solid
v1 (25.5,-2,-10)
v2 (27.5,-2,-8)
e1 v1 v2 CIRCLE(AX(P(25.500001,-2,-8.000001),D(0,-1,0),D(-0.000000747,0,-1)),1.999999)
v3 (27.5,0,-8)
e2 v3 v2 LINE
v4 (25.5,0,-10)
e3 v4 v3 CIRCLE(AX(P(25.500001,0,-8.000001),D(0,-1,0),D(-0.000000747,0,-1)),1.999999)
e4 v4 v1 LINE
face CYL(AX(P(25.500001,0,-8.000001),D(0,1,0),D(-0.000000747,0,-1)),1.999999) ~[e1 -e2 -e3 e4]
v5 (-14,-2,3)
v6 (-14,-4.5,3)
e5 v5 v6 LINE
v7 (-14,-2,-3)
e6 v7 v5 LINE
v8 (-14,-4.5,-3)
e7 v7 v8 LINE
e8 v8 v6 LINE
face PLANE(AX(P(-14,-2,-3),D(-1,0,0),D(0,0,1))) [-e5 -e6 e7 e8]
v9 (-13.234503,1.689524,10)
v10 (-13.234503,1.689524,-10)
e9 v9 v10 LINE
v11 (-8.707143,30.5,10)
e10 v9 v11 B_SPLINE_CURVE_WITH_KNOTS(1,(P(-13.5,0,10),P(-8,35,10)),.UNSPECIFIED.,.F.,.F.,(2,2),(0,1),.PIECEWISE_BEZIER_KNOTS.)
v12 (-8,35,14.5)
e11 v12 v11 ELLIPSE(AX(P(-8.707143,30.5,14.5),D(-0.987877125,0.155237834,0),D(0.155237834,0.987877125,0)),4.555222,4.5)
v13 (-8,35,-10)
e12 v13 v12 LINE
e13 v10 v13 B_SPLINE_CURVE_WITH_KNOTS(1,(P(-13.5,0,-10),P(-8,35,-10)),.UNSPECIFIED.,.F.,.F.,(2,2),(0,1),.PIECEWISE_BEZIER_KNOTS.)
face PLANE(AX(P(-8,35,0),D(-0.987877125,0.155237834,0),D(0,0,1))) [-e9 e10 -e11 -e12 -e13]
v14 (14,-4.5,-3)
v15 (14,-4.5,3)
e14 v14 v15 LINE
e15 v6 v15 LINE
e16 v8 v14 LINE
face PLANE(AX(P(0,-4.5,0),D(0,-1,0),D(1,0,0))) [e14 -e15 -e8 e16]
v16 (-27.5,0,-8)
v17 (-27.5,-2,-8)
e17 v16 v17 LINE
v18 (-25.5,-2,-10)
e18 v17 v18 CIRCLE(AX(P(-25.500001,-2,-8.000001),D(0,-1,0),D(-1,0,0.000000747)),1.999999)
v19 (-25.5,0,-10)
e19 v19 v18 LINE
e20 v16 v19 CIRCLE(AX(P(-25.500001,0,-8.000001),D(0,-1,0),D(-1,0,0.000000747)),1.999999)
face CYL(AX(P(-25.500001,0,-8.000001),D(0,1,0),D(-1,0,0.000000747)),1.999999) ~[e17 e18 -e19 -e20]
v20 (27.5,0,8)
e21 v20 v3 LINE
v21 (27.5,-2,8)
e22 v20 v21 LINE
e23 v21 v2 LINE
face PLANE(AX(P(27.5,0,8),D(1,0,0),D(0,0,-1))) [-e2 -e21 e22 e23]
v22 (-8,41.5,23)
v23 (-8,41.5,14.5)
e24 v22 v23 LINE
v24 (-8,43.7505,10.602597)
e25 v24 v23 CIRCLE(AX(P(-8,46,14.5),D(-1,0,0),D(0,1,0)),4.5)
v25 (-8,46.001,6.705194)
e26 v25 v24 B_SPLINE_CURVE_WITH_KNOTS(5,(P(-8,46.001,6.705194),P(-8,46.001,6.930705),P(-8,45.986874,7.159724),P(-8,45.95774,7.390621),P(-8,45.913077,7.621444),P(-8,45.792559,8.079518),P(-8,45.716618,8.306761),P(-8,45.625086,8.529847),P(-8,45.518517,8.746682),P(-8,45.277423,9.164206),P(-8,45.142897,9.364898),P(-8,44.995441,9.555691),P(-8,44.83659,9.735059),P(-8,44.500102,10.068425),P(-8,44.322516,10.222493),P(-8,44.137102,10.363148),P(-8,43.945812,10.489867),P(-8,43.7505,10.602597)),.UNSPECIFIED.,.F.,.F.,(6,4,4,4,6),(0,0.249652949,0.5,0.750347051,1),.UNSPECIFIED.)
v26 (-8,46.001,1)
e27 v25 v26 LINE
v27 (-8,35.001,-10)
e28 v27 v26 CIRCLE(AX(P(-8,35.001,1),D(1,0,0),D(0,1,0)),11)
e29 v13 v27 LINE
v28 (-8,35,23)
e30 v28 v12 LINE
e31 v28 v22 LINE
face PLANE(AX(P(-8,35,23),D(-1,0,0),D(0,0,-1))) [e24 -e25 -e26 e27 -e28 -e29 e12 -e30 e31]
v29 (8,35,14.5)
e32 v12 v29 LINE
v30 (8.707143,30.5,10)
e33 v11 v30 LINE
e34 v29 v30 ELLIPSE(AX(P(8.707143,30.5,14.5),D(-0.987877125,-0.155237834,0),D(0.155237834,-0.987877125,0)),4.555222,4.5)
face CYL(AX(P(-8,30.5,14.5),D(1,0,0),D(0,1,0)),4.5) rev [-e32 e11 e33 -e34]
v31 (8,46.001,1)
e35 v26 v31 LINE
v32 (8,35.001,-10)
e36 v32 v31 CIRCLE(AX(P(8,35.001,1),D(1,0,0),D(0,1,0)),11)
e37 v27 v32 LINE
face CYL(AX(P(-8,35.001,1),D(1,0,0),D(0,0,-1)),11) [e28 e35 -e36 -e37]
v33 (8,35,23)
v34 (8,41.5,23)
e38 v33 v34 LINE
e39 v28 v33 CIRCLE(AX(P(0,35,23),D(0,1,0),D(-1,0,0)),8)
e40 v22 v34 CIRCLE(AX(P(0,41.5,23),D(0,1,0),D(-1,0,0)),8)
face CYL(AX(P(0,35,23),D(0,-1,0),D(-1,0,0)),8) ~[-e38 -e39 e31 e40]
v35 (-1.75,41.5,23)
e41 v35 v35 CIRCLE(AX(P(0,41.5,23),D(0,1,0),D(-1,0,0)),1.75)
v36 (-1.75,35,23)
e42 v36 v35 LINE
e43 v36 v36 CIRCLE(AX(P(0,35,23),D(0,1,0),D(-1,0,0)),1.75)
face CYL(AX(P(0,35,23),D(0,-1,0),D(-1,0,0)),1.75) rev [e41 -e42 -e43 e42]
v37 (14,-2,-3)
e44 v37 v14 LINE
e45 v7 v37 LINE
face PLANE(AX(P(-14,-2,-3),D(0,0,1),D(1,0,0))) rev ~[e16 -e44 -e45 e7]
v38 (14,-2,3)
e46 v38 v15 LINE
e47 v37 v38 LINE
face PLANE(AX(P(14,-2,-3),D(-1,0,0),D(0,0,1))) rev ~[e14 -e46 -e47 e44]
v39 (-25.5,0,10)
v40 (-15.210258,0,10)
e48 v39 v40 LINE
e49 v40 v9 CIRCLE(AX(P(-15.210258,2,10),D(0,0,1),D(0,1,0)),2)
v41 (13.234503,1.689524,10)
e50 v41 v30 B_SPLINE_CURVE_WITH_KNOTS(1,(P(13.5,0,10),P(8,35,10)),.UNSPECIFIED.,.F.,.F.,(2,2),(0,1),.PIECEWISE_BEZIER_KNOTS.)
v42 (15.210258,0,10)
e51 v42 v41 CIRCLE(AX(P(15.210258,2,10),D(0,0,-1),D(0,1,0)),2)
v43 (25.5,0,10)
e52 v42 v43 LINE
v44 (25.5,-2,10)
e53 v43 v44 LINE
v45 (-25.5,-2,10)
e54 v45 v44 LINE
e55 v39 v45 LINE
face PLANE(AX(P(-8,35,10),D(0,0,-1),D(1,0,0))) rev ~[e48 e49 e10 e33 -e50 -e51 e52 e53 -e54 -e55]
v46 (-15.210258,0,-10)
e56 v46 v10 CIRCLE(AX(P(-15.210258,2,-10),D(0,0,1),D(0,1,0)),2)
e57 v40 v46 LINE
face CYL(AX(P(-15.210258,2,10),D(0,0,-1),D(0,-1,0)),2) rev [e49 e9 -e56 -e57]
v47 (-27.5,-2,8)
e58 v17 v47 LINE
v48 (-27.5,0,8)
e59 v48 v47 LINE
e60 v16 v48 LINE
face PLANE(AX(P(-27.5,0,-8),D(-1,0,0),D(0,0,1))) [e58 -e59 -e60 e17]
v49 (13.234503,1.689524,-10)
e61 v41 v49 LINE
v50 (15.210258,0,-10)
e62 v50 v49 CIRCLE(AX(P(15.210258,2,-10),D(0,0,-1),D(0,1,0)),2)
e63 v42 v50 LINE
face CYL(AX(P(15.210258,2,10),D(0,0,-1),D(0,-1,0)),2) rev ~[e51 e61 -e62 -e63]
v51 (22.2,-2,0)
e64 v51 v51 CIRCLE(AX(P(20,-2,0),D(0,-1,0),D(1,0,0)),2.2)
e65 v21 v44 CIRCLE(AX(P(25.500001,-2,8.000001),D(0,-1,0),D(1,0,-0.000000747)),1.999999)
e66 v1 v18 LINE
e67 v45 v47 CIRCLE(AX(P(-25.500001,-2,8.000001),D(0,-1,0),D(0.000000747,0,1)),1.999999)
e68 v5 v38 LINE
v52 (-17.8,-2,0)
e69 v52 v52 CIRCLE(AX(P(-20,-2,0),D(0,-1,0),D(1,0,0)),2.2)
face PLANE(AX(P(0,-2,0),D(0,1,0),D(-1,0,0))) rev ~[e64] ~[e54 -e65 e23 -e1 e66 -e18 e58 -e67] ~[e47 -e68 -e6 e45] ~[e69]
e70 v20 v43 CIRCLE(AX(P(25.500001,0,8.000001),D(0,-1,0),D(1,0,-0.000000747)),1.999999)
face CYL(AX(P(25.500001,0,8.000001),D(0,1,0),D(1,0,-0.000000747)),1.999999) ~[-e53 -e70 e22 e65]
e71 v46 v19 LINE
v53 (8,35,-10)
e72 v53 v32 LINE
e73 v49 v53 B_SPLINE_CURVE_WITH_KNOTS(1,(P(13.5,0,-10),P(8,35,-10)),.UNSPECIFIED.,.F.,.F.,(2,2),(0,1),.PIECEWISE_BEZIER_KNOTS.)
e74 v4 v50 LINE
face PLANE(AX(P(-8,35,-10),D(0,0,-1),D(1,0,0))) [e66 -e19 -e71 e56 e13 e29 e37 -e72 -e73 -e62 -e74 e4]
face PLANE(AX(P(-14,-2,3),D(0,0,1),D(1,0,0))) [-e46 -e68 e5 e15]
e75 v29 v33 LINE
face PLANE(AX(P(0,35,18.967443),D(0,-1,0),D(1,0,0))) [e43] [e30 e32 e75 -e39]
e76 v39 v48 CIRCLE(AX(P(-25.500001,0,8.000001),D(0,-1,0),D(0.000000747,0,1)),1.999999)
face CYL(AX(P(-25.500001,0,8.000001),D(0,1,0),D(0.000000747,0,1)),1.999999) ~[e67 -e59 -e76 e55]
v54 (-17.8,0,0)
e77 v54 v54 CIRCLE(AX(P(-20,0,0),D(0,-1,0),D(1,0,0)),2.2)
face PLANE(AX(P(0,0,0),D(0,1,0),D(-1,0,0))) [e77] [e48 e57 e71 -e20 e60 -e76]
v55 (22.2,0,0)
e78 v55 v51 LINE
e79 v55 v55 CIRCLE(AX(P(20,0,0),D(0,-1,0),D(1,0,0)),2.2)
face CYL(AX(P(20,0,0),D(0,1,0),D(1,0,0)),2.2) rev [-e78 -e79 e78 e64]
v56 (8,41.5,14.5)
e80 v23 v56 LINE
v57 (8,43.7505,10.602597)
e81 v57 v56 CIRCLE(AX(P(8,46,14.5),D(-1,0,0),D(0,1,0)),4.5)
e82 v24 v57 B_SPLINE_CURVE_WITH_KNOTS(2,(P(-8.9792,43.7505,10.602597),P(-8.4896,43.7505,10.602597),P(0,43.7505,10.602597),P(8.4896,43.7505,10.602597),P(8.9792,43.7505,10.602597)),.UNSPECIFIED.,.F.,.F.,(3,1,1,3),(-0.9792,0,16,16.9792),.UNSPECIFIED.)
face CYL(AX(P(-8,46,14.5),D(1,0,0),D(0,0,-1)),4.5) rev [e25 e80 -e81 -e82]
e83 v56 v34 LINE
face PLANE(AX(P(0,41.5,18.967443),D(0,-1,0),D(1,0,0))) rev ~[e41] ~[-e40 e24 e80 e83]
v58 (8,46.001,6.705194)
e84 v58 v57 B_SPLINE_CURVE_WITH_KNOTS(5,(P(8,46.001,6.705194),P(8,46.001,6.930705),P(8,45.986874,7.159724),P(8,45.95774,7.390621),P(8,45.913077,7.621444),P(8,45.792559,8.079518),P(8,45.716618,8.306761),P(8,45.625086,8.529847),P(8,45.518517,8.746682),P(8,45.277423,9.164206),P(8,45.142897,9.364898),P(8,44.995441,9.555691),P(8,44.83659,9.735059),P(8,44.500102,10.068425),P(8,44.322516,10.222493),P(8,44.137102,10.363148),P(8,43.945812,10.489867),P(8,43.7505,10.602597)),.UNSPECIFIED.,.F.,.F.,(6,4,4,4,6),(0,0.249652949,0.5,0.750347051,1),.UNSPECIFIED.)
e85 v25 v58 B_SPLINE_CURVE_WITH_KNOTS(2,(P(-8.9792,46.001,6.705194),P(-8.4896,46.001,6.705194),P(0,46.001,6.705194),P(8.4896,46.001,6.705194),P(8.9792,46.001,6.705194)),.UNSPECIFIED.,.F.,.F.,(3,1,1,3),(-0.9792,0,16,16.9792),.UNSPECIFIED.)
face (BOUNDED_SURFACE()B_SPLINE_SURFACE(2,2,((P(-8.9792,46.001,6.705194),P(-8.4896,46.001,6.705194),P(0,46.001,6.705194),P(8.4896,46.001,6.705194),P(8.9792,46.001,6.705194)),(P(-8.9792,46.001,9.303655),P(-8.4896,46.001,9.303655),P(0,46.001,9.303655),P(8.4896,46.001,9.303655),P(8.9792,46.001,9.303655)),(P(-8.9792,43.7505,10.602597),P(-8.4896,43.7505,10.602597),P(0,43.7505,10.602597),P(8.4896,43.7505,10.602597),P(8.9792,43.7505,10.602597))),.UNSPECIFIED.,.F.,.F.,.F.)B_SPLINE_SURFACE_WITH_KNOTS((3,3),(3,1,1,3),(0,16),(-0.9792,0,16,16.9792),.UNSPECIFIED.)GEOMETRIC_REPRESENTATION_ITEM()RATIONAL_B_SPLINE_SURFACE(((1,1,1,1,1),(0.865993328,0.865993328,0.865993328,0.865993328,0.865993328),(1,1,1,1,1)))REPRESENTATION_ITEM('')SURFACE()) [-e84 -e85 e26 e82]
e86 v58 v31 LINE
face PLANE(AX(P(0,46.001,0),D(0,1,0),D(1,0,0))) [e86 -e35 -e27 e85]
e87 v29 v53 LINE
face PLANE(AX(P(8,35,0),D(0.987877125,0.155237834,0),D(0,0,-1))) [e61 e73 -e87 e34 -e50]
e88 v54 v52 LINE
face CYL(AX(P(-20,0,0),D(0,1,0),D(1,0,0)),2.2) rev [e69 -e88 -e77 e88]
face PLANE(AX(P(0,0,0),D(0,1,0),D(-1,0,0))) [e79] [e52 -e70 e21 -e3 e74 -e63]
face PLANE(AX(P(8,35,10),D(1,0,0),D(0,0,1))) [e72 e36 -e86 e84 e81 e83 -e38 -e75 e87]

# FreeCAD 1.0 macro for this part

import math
import FreeCAD as App
import Part
import Sketcher
from FreeCAD import Vector
Q = App.Units.Quantity


def edges_at(feature, points):
    """Names of the edges that pass closest to the given points."""
    edges = feature.Shape.Edges
    near = lambda p: min(range(len(edges)), key=lambda i: edges[i].distToShape(Part.Vertex(*p))[0])
    return sorted({f"Edge{near(p) + 1}" for p in points})

doc = App.newDocument("Part")
body = doc.addObject("PartDesign::Body", "Body")

# Sketch on XY plane
sketch1 = doc.addObject("Sketcher::SketchObject", "Sketch")
body.addObject(sketch1)
sketch1.AttachmentSupport = (doc.XY_Plane, [""])
sketch1.MapMode = "FlatFace"
sketch1.addGeometry([
    Part.LineSegment(Vector(25.5, -10, 0), Vector(-25.5, -10, 0)),  # 0
    Part.ArcOfCircle(Part.Circle(Vector(-25.5, -8, 0), Vector(0, 0, 1), 2), math.radians(180), math.radians(270)),  # 1
    Part.LineSegment(Vector(-27.5, -8, 0), Vector(-27.5, 8, 0)),  # 2
    Part.ArcOfCircle(Part.Circle(Vector(-25.5, 8, 0), Vector(0, 0, 1), 2), math.radians(90), math.radians(180)),  # 3
    Part.LineSegment(Vector(-25.5, 10, 0), Vector(25.5, 10, 0)),  # 4
    Part.ArcOfCircle(Part.Circle(Vector(25.5, 8, 0), Vector(0, 0, 1), 2), math.radians(0), math.radians(90)),  # 5
    Part.LineSegment(Vector(27.5, 8, 0), Vector(27.5, -8, 0)),  # 6
    Part.ArcOfCircle(Part.Circle(Vector(25.5, -8, 0), Vector(0, 0, 1), 2), math.radians(-90), math.radians(0)),  # 7
    Part.Circle(Vector(20, 0, 0), Vector(0, 0, 1), 2.2),  # 8
    Part.Circle(Vector(-20, 0, 0), Vector(0, 0, 1), 2.2),  # 9
], False)
sketch1.addConstraint([
    Sketcher.Constraint("Tangent", 0, 2, 1, 2),
    Sketcher.Constraint("Tangent", 1, 1, 2, 1),
    Sketcher.Constraint("Tangent", 2, 2, 3, 2),
    Sketcher.Constraint("Tangent", 3, 1, 4, 1),
    Sketcher.Constraint("Tangent", 4, 2, 5, 2),
    Sketcher.Constraint("Tangent", 5, 1, 6, 1),
    Sketcher.Constraint("Tangent", 6, 2, 7, 2),
    Sketcher.Constraint("Tangent", 7, 1, 0, 1),
    Sketcher.Constraint("Horizontal", 0),
    Sketcher.Constraint("Vertical", 2),
    Sketcher.Constraint("Horizontal", 4),
    Sketcher.Constraint("Vertical", 6),
    Sketcher.Constraint("Equal", 1, 3),
    Sketcher.Constraint("Equal", 3, 5),
    Sketcher.Constraint("Equal", 5, 7),
    Sketcher.Constraint("Equal", 8, 9),
    Sketcher.Constraint("Symmetric", 1, 3, 5, 3, -1, 1),
    Sketcher.Constraint("Symmetric", 8, 3, 9, 3, -1, 1),
    Sketcher.Constraint("PointOnObject", 8, 3, -1),
    Sketcher.Constraint("Radius", 1, Q("1.999999 mm")),
    Sketcher.Constraint("Diameter", 8, Q("4.4 mm")),
    Sketcher.Constraint("DistanceX", 0, 2, 0, 1, Q("51 mm")),
    Sketcher.Constraint("DistanceY", 2, 1, 2, 2, Q("16 mm")),
    Sketcher.Constraint("DistanceX", -1, 1, 8, 3, Q("20 mm")),
])
pad1 = doc.addObject("PartDesign::Pad", "Pad")
body.addObject(pad1)
pad1.Profile = sketch1
pad1.Length = 2
pad1.Reversed = True

# Sketch on XY plane
sketch2 = doc.addObject("Sketcher::SketchObject", "Sketch001")
body.addObject(sketch2)
sketch2.AttachmentSupport = (doc.XY_Plane, [""])
sketch2.MapMode = "FlatFace"
sketch2.AttachmentOffset = App.Placement(Vector(0, 0, -2), App.Rotation())
sketch2.addGeometry([
    Part.LineSegment(Vector(-14, -3, 0), Vector(-14, 3, 0)),
    Part.LineSegment(Vector(-14, 3, 0), Vector(14, 3, 0)),
    Part.LineSegment(Vector(14, 3, 0), Vector(14, -3, 0)),
    Part.LineSegment(Vector(14, -3, 0), Vector(-14, -3, 0)),
], False)
sketch2.addConstraint([
    Sketcher.Constraint("Coincident", 0, 2, 1, 1),
    Sketcher.Constraint("Coincident", 1, 2, 2, 1),
    Sketcher.Constraint("Coincident", 2, 2, 3, 1),
    Sketcher.Constraint("Coincident", 3, 2, 0, 1),
    Sketcher.Constraint("Vertical", 0),
    Sketcher.Constraint("Horizontal", 1),
    Sketcher.Constraint("Vertical", 2),
    Sketcher.Constraint("Horizontal", 3),
    Sketcher.Constraint("Symmetric", 0, 2, 2, 2, -1, 1),
    Sketcher.Constraint("DistanceX", 1, 1, 1, 2, Q("28 mm")),
    Sketcher.Constraint("DistanceY", 0, 1, 0, 2, Q("6 mm")),
])
pad2 = doc.addObject("PartDesign::Pad", "Pad001")
body.addObject(pad2)
pad2.Profile = sketch2
pad2.Length = 2.5
pad2.Reversed = True

# Sketch on XY plane
sketch3 = doc.addObject("Sketcher::SketchObject", "Sketch002")
body.addObject(sketch3)
sketch3.AttachmentSupport = (doc.XY_Plane, [""])
sketch3.MapMode = "FlatFace"
sketch3.addGeometry([
    Part.LineSegment(Vector(-14, 10, 0), Vector(-14, -10, 0)),
    Part.LineSegment(Vector(-14, -10, 0), Vector(14, -10, 0)),
    Part.LineSegment(Vector(14, -10, 0), Vector(14, 10, 0)),
    Part.LineSegment(Vector(14, 10, 0), Vector(-14, 10, 0)),
], False)
sketch3.addConstraint([
    Sketcher.Constraint("Coincident", 0, 2, 1, 1),
    Sketcher.Constraint("Coincident", 1, 2, 2, 1),
    Sketcher.Constraint("Coincident", 2, 2, 3, 1),
    Sketcher.Constraint("Coincident", 3, 2, 0, 1),
    Sketcher.Constraint("Vertical", 0),
    Sketcher.Constraint("Horizontal", 1),
    Sketcher.Constraint("Vertical", 2),
    Sketcher.Constraint("Horizontal", 3),
    Sketcher.Constraint("Symmetric", 0, 2, 2, 2, -1, 1),
    Sketcher.Constraint("DistanceX", 1, 1, 1, 2, Q("27 mm")),
    Sketcher.Constraint("DistanceY", 0, 2, 0, 1, Q("20 mm")),
])

# Sketch on XY plane
sketch4 = doc.addObject("Sketcher::SketchObject", "Sketch003")
body.addObject(sketch4)
sketch4.AttachmentSupport = (doc.XY_Plane, [""])
sketch4.MapMode = "FlatFace"
sketch4.AttachmentOffset = App.Placement(Vector(0, 0, 35), App.Rotation())
sketch4.addGeometry([
    Part.LineSegment(Vector(-8, 10, 0), Vector(-8, -10, 0)),
    Part.LineSegment(Vector(-8, -10, 0), Vector(8, -10, 0)),
    Part.LineSegment(Vector(8, -10, 0), Vector(8, 10, 0)),
    Part.LineSegment(Vector(8, 10, 0), Vector(-8, 10, 0)),
], False)
sketch4.addConstraint([
    Sketcher.Constraint("Coincident", 0, 2, 1, 1),
    Sketcher.Constraint("Coincident", 1, 2, 2, 1),
    Sketcher.Constraint("Coincident", 2, 2, 3, 1),
    Sketcher.Constraint("Coincident", 3, 2, 0, 1),
    Sketcher.Constraint("Vertical", 0),
    Sketcher.Constraint("Horizontal", 1),
    Sketcher.Constraint("Vertical", 2),
    Sketcher.Constraint("Horizontal", 3),
    Sketcher.Constraint("Symmetric", 0, 2, 2, 2, -1, 1),
    Sketcher.Constraint("DistanceX", 1, 1, 1, 2, Q("16 mm")),
    Sketcher.Constraint("DistanceY", 0, 2, 0, 1, Q("20 mm")),
])

additiveloft = doc.addObject("PartDesign::AdditiveLoft", "AdditiveLoft")
body.addObject(additiveloft)
additiveloft.Profile = sketch3
additiveloft.Sections = [sketch4]
doc.recompute()

fillet = doc.addObject("PartDesign::Fillet", "Fillet")
body.addObject(fillet)
fillet.Base = (additiveloft, edges_at(additiveloft, [(-13.5, 0, 0), (13.5, 0, 0)]))
fillet.Radius = 2

# Sketch on XY plane
sketch5 = doc.addObject("Sketcher::SketchObject", "Sketch004")
body.addObject(sketch5)
sketch5.AttachmentSupport = (doc.XY_Plane, [""])
sketch5.MapMode = "FlatFace"
sketch5.AttachmentOffset = App.Placement(Vector(0, 0, 35), App.Rotation())
sketch5.addGeometry([
    Part.LineSegment(Vector(-8, 10, 0), Vector(-8, -10, 0)),
    Part.LineSegment(Vector(-8, -10, 0), Vector(8, -10, 0)),
    Part.LineSegment(Vector(8, -10, 0), Vector(8, 10, 0)),
    Part.LineSegment(Vector(8, 10, 0), Vector(-8, 10, 0)),
], False)
sketch5.addConstraint([
    Sketcher.Constraint("Coincident", 0, 2, 1, 1),
    Sketcher.Constraint("Coincident", 1, 2, 2, 1),
    Sketcher.Constraint("Coincident", 2, 2, 3, 1),
    Sketcher.Constraint("Coincident", 3, 2, 0, 1),
    Sketcher.Constraint("Vertical", 0),
    Sketcher.Constraint("Horizontal", 1),
    Sketcher.Constraint("Vertical", 2),
    Sketcher.Constraint("Horizontal", 3),
    Sketcher.Constraint("Symmetric", 0, 2, 2, 2, -1, 1),
    Sketcher.Constraint("DistanceX", 1, 1, 1, 2, Q("16 mm")),
    Sketcher.Constraint("DistanceY", 0, 2, 0, 1, Q("20 mm")),
])
pad3 = doc.addObject("PartDesign::Pad", "Pad002")
body.addObject(pad3)
pad3.Profile = sketch5
pad3.Length = 11.001

# Sketch on XY plane
sketch6 = doc.addObject("Sketcher::SketchObject", "Sketch005")
body.addObject(sketch6)
sketch6.AttachmentSupport = (doc.XY_Plane, [""])
sketch6.MapMode = "FlatFace"
sketch6.AttachmentOffset = App.Placement(Vector(0, 0, 35), App.Rotation())
sketch6.addGeometry([
    Part.LineSegment(Vector(8, -10, 0), Vector(-8, -10, 0)),  # 0
    Part.LineSegment(Vector(-8, -10, 0), Vector(-8, -23, 0)),  # 1
    Part.ArcOfCircle(Part.Circle(Vector(0, -23, 0), Vector(0, 0, 1), 8), math.radians(180), math.radians(360)),  # 2
    Part.LineSegment(Vector(8, -23, 0), Vector(8, -10, 0)),  # 3
    Part.Circle(Vector(0, -23, 0), Vector(0, 0, 1), 1.8),  # 4
], False)
sketch6.addConstraint([
    Sketcher.Constraint("Coincident", 0, 2, 1, 1),
    Sketcher.Constraint("Tangent", 1, 2, 2, 1),
    Sketcher.Constraint("Tangent", 2, 2, 3, 1),
    Sketcher.Constraint("Coincident", 3, 2, 0, 1),
    Sketcher.Constraint("Horizontal", 0),
    Sketcher.Constraint("Vertical", 1),
    Sketcher.Constraint("Vertical", 3),
    Sketcher.Constraint("Coincident", 4, 3, 2, 3),
    Sketcher.Constraint("PointOnObject", 2, 3, -2),
    Sketcher.Constraint("Radius", 2, Q("8 mm")),
    Sketcher.Constraint("Diameter", 4, Q("3.5 mm")),
    Sketcher.Constraint("DistanceY", 1, 2, 1, 1, Q("13 mm")),
    Sketcher.Constraint("DistanceY", 2, 3, -1, 1, Q("23 mm")),
])
pad4 = doc.addObject("PartDesign::Pad", "Pad003")
body.addObject(pad4)
pad4.Profile = sketch6
pad4.Length = 6.5
doc.recompute()

fillet2 = doc.addObject("PartDesign::Fillet", "Fillet001")
body.addObject(fillet2)
fillet2.Base = (pad4, edges_at(pad4, [(0, 10, 46.001)]))
fillet2.Radius = 11
doc.recompute()

fillet3 = doc.addObject("PartDesign::Fillet", "Fillet002")
body.addObject(fillet3)
fillet3.Base = (fillet2, edges_at(fillet2, [(0, -10, 41.5), (0, -10, 35)]))
fillet3.Radius = 4.5
doc.recompute()

fillet4 = doc.addObject("PartDesign::Fillet", "Fillet003")
body.addObject(fillet4)
fillet4.Base = (fillet3, edges_at(fillet3, [(0, -10, 46.001)]))
fillet4.Radius = 4.5
body2 = doc.addObject("PartDesign::Body", "Body001")
doc.recompute()

body.Placement = App.Placement(Vector(0, 0, 0), App.Rotation(Vector(1, 0, 0), 270))
boolean = doc.addObject("PartDesign::Boolean", "Boolean")
body2.addObject(boolean)
boolean.Type = "Fuse"
boolean.addObjects([body])

doc.recompute()
